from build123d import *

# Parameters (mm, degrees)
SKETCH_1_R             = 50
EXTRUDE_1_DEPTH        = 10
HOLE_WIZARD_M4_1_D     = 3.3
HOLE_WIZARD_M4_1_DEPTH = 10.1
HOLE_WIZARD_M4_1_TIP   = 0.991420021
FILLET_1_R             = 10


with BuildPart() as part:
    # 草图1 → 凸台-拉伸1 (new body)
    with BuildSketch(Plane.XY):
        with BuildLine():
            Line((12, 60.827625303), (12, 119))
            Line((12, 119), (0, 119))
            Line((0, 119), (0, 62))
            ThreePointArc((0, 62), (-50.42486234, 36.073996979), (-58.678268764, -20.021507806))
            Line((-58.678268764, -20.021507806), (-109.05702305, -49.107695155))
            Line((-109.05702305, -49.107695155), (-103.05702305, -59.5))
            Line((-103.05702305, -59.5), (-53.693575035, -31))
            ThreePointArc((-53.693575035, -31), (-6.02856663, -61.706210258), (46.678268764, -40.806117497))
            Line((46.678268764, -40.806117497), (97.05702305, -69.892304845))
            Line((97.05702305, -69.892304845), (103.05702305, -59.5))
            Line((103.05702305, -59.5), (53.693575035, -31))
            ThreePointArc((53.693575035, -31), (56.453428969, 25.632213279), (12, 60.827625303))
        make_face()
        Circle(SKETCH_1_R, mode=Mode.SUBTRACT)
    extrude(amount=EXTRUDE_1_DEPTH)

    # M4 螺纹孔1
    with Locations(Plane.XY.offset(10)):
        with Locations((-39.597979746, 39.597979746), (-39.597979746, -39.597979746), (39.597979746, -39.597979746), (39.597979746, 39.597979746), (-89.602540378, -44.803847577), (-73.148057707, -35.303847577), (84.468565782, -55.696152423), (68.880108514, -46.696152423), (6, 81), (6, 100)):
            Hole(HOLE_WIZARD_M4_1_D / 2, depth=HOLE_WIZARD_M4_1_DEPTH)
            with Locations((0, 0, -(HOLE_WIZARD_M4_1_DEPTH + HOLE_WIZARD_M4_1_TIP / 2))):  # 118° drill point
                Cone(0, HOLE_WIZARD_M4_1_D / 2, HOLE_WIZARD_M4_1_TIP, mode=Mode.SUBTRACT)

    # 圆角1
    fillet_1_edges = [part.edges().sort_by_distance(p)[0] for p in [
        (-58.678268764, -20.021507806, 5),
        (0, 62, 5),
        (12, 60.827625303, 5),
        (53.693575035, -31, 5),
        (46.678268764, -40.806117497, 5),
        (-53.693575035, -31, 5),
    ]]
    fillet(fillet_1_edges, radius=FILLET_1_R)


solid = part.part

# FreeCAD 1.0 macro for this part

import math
import FreeCAD as App
import Part
import Sketcher
Q = App.Units.Quantity


def edges_at(feature, points):
    """Names of the edges that pass closest to the given points."""
    edges = feature.Shape.Edges
    near = lambda p: min(range(len(edges)), key=lambda i: edges[i].distToShape(Part.Vertex(*p))[0])
    return sorted({f"Edge{near(p) + 1}" for p in points})

doc = App.newDocument("Part")
params = doc.addObject("Spreadsheet::Sheet", "Params")
for row, (alias, value) in enumerate([
    ("sketch1_diameter", "100 mm"),
    ("sketch1_radius", "62 mm"),
    ("sketch1_width", "12 mm"),
    ("sketch1_height", "57 mm"),
    ("sketch1_length", "12 mm"),
    ("pad1_length", "10 mm"),
    ("sketch2_diameter", "3.3 mm"),
    ("hole_diameter", "3.3 mm"),
    ("hole_depth", "10.1 mm"),
    ("fillet_radius", "10 mm"),
], start=1):
    params.set(f"A{row}", alias)
    params.set(f"B{row}", "=" + value)
    params.setAlias(f"B{row}", alias)

body = doc.addObject("PartDesign::Body", "Body")

sketch1 = body.newObject("Sketcher::SketchObject", "Sketch")
sketch1.AttachmentSupport = (doc.getObject("XY_Plane"), [""])
sketch1.MapMode = "FlatFace"
sketch1.addGeometry(Part.LineSegment(App.Vector(12, 61, 0), App.Vector(12, 119, 0)), False)
sketch1.addGeometry(Part.LineSegment(App.Vector(12, 119, 0), App.Vector(0, 119, 0)), False)
sketch1.addGeometry(Part.LineSegment(App.Vector(0, 119, 0), App.Vector(0, 62, 0)), False)
sketch1.addGeometry(Part.ArcOfCircle(Part.Circle(App.Vector(0, 0, 0), App.Vector(0, 0, 1), 62), math.radians(90), math.radians(199)), False)
sketch1.addGeometry(Part.LineSegment(App.Vector(-59, -20, 0), App.Vector(-109, -49, 0)), False)
sketch1.addGeometry(Part.LineSegment(App.Vector(-109, -49, 0), App.Vector(-103, -60, 0)), False)
sketch1.addGeometry(Part.LineSegment(App.Vector(-103, -60, 0), App.Vector(-54, -31, 0)), False)
sketch1.addGeometry(Part.ArcOfCircle(Part.Circle(App.Vector(0, 0, 0), App.Vector(0, 0, 1), 62), math.radians(-150), math.radians(-41)), False)
sketch1.addGeometry(Part.LineSegment(App.Vector(47, -41, 0), App.Vector(97, -70, 0)), False)
sketch1.addGeometry(Part.LineSegment(App.Vector(97, -70, 0), App.Vector(103, -60, 0)), False)
sketch1.addGeometry(Part.LineSegment(App.Vector(103, -60, 0), App.Vector(54, -31, 0)), False)
sketch1.addGeometry(Part.ArcOfCircle(Part.Circle(App.Vector(0, 0, 0), App.Vector(0, 0, 1), 62), math.radians(-30), math.radians(79)), False)
sketch1.addGeometry(Part.Circle(App.Vector(0, 0, 0), App.Vector(0, 0, 1), 50), False)
sketch1.addConstraint(Sketcher.Constraint("Coincident", 0, 2, 1, 1))
sketch1.addConstraint(Sketcher.Constraint("Coincident", 1, 2, 2, 1))
sketch1.addConstraint(Sketcher.Constraint("Coincident", 2, 2, 3, 1))
sketch1.addConstraint(Sketcher.Constraint("Coincident", 3, 2, 4, 1))
sketch1.addConstraint(Sketcher.Constraint("Coincident", 4, 2, 5, 1))
sketch1.addConstraint(Sketcher.Constraint("Coincident", 5, 2, 6, 1))
sketch1.addConstraint(Sketcher.Constraint("Coincident", 6, 2, 7, 1))
sketch1.addConstraint(Sketcher.Constraint("Coincident", 7, 2, 8, 1))
sketch1.addConstraint(Sketcher.Constraint("Coincident", 8, 2, 9, 1))
sketch1.addConstraint(Sketcher.Constraint("Coincident", 9, 2, 10, 1))
sketch1.addConstraint(Sketcher.Constraint("Coincident", 10, 2, 11, 1))
sketch1.addConstraint(Sketcher.Constraint("Coincident", 11, 2, 0, 1))
sketch1.addConstraint(Sketcher.Constraint("Vertical", 0))
sketch1.addConstraint(Sketcher.Constraint("Horizontal", 1))
sketch1.addConstraint(Sketcher.Constraint("Vertical", 2))
sketch1.addConstraint(Sketcher.Constraint("Coincident", 3, 3, -1, 1))
sketch1.addConstraint(Sketcher.Constraint("Coincident", 7, 3, -1, 1))
sketch1.addConstraint(Sketcher.Constraint("Coincident", 11, 3, -1, 1))
sketch1.addConstraint(Sketcher.Constraint("Coincident", 12, 3, -1, 1))
sketch1.addConstraint(Sketcher.Constraint("Equal", 3, 7))
sketch1.addConstraint(Sketcher.Constraint("Equal", 7, 11))
sketch1.addConstraint(Sketcher.Constraint("Symmetric", 5, 2, 9, 2, -2))
sketch1.addConstraint(Sketcher.Constraint("PointOnObject", 1, 2, -2))
sketch1.addConstraint(Sketcher.Constraint("Perpendicular", 4, 5))
sketch1.addConstraint(Sketcher.Constraint("Perpendicular", 5, 6))
sketch1.addConstraint(Sketcher.Constraint("Perpendicular", 8, 9))
sketch1.addConstraint(Sketcher.Constraint("Perpendicular", 9, 10))
sketch1.addConstraint(Sketcher.Constraint("Horizontal", 6, 2, 10, 2))
sketch1.addConstraint(Sketcher.Constraint("Equal", 4, 8))
sketch1.addConstraint(Sketcher.Constraint("Equal", 5, 9))
sketch1.addConstraint(Sketcher.Constraint("Diameter", 12, 100.0))
sketch1.addConstraint(Sketcher.Constraint("Radius", 3, 62.0))
sketch1.addConstraint(Sketcher.Constraint("DistanceX", 1, 2, 1, 1, 12.0))
sketch1.addConstraint(Sketcher.Constraint("DistanceY", 2, 2, 2, 1, 57.0))
sketch1.addConstraint(Sketcher.Constraint("Angle", 4, Q("-150 deg")))
sketch1.addConstraint(Sketcher.Constraint("Distance", 5, 12.0))
sketch1.addConstraint(Sketcher.Constraint("Distance", 6, 57.0))
sketch1.setExpression("Constraints[30]", "Params.sketch1_diameter")
sketch1.setExpression("Constraints[31]", "Params.sketch1_radius")
sketch1.setExpression("Constraints[32]", "Params.sketch1_width")
sketch1.setExpression("Constraints[33]", "Params.sketch1_height")
sketch1.setExpression("Constraints[35]", "Params.sketch1_length")
pad1 = body.newObject("PartDesign::Pad", "Pad")
pad1.Profile = sketch1
pad1.setExpression("Length", "Params.pad1_length")

sketch2 = body.newObject("Sketcher::SketchObject", "Sketch001")
sketch2.AttachmentSupport = (doc.getObject("XY_Plane"), [""])
sketch2.MapMode = "FlatFace"
sketch2.AttachmentOffset = App.Placement(App.Vector(0, 0, 10), App.Rotation())
sketch2.addGeometry(Part.Circle(App.Vector(-39.6, 39.6, 0), App.Vector(0, 0, 1), 1.6), False)
sketch2.addGeometry(Part.Circle(App.Vector(-39.6, -39.6, 0), App.Vector(0, 0, 1), 1.6), False)
sketch2.addGeometry(Part.Circle(App.Vector(39.6, -39.6, 0), App.Vector(0, 0, 1), 1.6), False)
sketch2.addGeometry(Part.Circle(App.Vector(39.6, 39.6, 0), App.Vector(0, 0, 1), 1.6), False)
sketch2.addGeometry(Part.Circle(App.Vector(-89.6, -44.8, 0), App.Vector(0, 0, 1), 1.6), False)
sketch2.addGeometry(Part.Circle(App.Vector(-73.1, -35.3, 0), App.Vector(0, 0, 1), 1.6), False)
sketch2.addGeometry(Part.Circle(App.Vector(84.5, -55.7, 0), App.Vector(0, 0, 1), 1.6), False)
sketch2.addGeometry(Part.Circle(App.Vector(68.9, -46.7, 0), App.Vector(0, 0, 1), 1.6), False)
sketch2.addGeometry(Part.Circle(App.Vector(6, 81, 0), App.Vector(0, 0, 1), 1.6), False)
sketch2.addGeometry(Part.Circle(App.Vector(6, 100, 0), App.Vector(0, 0, 1), 1.6), False)
sketch2.addConstraint(Sketcher.Constraint("Equal", 0, 1))
sketch2.addConstraint(Sketcher.Constraint("Equal", 1, 2))
sketch2.addConstraint(Sketcher.Constraint("Equal", 2, 3))
sketch2.addConstraint(Sketcher.Constraint("Equal", 3, 4))
sketch2.addConstraint(Sketcher.Constraint("Equal", 4, 5))
sketch2.addConstraint(Sketcher.Constraint("Equal", 5, 6))
sketch2.addConstraint(Sketcher.Constraint("Equal", 6, 7))
sketch2.addConstraint(Sketcher.Constraint("Equal", 7, 8))
sketch2.addConstraint(Sketcher.Constraint("Equal", 8, 9))
sketch2.addConstraint(Sketcher.Constraint("Symmetric", 0, 3, 2, 3, -1, 1))
sketch2.addConstraint(Sketcher.Constraint("Symmetric", 1, 3, 3, 3, -1, 1))
sketch2.addConstraint(Sketcher.Constraint("Symmetric", 1, 3, 2, 3, -2))
sketch2.addConstraint(Sketcher.Constraint("Vertical", 8, 3, 9, 3))
sketch2.addConstraint(Sketcher.Constraint("Diameter", 0, 3.3))
sketch2.addConstraint(Sketcher.Constraint("DistanceX", -1, 1, 8, 3, 6.0))
sketch2.addConstraint(Sketcher.Constraint("DistanceY", -1, 1, 8, 3, 81.0))
sketch2.addConstraint(Sketcher.Constraint("DistanceY", -1, 1, 9, 3, 100.0))
sketch2.addConstraint(Sketcher.Constraint("DistanceY", 6, 3, 7, 3, 9.0))
sketch2.addConstraint(Sketcher.Constraint("DistanceY", 4, 3, 5, 3, 9.5))
sketch2.addConstraint(Sketcher.Constraint("DistanceX", 0, 3, -1, 1, 39.59798))
sketch2.addConstraint(Sketcher.Constraint("DistanceY", -1, 1, 0, 3, 39.59798))
sketch2.addConstraint(Sketcher.Constraint("DistanceX", 4, 3, -1, 1, 89.60254))
sketch2.addConstraint(Sketcher.Constraint("DistanceX", -1, 1, 7, 3, 68.880109))
sketch2.addConstraint(Sketcher.Constraint("DistanceY", 4, 3, -1, 1, 44.803848))
sketch2.addConstraint(Sketcher.Constraint("DistanceX", 5, 3, -1, 1, 73.148058))
sketch2.addConstraint(Sketcher.Constraint("DistanceX", -1, 1, 6, 3, 84.468566))
sketch2.addConstraint(Sketcher.Constraint("DistanceY", 6, 3, -1, 1, 55.696152))
sketch2.setExpression("Constraints[13]", "Params.sketch2_diameter")
doc.recompute()
hole = body.newObject("PartDesign::Hole", "Hole")
hole.Profile = sketch2
hole.ThreadType = "None"
hole.setExpression("Diameter", "Params.hole_diameter")
hole.DepthType = "Dimension"
hole.setExpression("Depth", "Params.hole_depth")
hole.DrillPoint = "Angled"
hole.DrillPointAngle = 118
doc.recompute()

fillet = body.newObject("PartDesign::Fillet", "Fillet")
fillet.Base = (hole, edges_at(hole, [
    (-58.678, -20.022, 5),
    (0, 62, 5),
    (12, 60.828, 5),
    (53.694, -31, 5),
    (46.678, -40.806, 5),
    (-53.694, -31, 5),
]))
fillet.setExpression("Radius", "Params.fillet_radius")

doc.recompute()
